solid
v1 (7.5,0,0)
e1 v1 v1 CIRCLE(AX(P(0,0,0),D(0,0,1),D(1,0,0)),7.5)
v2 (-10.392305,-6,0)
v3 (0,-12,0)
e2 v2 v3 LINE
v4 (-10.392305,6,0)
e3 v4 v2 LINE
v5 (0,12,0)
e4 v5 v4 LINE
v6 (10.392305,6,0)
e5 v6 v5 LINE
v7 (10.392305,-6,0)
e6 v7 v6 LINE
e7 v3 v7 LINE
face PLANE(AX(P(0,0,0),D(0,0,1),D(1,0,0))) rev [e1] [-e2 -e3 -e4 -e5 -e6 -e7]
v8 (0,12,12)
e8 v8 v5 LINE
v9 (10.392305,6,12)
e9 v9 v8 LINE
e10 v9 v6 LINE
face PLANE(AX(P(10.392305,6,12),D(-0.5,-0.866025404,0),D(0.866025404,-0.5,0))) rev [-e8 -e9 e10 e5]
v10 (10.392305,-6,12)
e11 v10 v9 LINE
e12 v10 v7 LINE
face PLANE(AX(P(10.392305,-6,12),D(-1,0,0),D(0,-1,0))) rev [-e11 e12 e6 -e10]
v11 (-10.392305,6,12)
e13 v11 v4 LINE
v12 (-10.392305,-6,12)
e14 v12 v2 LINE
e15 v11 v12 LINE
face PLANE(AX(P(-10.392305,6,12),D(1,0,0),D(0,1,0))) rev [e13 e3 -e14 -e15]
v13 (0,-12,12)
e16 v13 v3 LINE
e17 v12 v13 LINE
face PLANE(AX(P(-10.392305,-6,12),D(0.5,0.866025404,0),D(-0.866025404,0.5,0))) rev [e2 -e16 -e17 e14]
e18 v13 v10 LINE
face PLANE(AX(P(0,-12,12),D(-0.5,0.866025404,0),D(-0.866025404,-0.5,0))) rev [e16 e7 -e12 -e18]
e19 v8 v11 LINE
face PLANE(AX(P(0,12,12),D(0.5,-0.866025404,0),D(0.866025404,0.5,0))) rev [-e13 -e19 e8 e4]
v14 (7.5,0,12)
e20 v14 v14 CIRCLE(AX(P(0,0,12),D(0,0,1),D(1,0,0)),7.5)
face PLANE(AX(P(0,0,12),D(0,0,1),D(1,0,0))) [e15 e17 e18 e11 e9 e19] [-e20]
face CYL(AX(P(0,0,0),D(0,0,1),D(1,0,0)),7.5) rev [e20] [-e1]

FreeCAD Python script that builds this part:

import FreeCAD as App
import Part
import Sketcher

V = App.Vector
Q = App.Units.Quantity


def add_polygon(sketch, points):
    """Adds a closed chain of lines whose ends are joined by coincident constraints."""
    first, n = sketch.GeometryCount, len(points)
    for a, b in zip(points, points[1:] + points[:1]):
        sketch.addGeometry(Part.LineSegment(App.Vector(*a, 0), App.Vector(*b, 0)), False)
    for i in range(n):
        sketch.addConstraint(Sketcher.Constraint("Coincident", first + i, 2, first + (i + 1) % n, 1))

doc = App.newDocument("Part")
params = doc.addObject("Spreadsheet::Sheet", "Params")
for row, (alias, value) in enumerate([
    ("sketch1_height", "12 mm"),
    ("sketch1_length", "12 mm"),
    ("pad1_length", "12 mm"),
    ("sketch2_diameter", "15 mm"),
], start=1):
    params.set(f"A{row}", alias)
    params.set(f"B{row}", "=" + value)
    params.setAlias(f"B{row}", alias)

body = doc.addObject("PartDesign::Body", "Body")

# Sketch on XY plane
sketch1 = doc.addObject("Sketcher::SketchObject", "Sketch")
body.addObject(sketch1)
sketch1.AttachmentSupport = (doc.XY_Plane, [""])
sketch1.MapMode = "FlatFace"
add_polygon(sketch1, [(0, -12), (10, -6), (10, 6), (0, 12), (-10, 6), (-10, -6)])  # lines 0-5
sketch1.addConstraint([
    Sketcher.Constraint("Vertical", 1),
    Sketcher.Constraint("Vertical", 4),
    Sketcher.Constraint("Symmetric", 0, 2, 3, 2, -1, 1),
    Sketcher.Constraint("Symmetric", 2, 2, 5, 2, -1, 1),
    Sketcher.Constraint("PointOnObject", 2, 2, -2),
    Sketcher.Constraint("Parallel", 2, 5),
    Sketcher.Constraint("Horizontal", 1, 2, 3, 2),
    Sketcher.Constraint("DistanceY", 1, 1, 1, 2, Q("12 mm")),
    Sketcher.Constraint("Angle", 0, Q("30 deg")),
    Sketcher.Constraint("Distance", 0, Q("12 mm")),
])
sketch1.setExpression("Constraints[13]", "Params.sketch1_height")
sketch1.setExpression("Constraints[15]", "Params.sketch1_length")
pad1 = doc.addObject("PartDesign::Pad", "Pad")
body.addObject(pad1)
pad1.Profile = sketch1
pad1.setExpression("Length", "Params.pad1_length")

# Sketch on XY plane
sketch2 = doc.addObject("Sketcher::SketchObject", "Sketch001")
body.addObject(sketch2)
sketch2.AttachmentSupport = (doc.XY_Plane, [""])
sketch2.MapMode = "FlatFace"
sketch2.AttachmentOffset = App.Placement(V(0, 0, 12), App.Rotation())
sketch2.addGeometry(Part.Circle(V(0, 0, 0), V(0, 0, 1), 8), False)
sketch2.addConstraint([
    Sketcher.Constraint("Coincident", 0, 3, -1, 1),
    Sketcher.Constraint("Diameter", 0, Q("15 mm")),
])
sketch2.setExpression("Constraints[1]", "Params.sketch2_diameter")
pocket1 = doc.addObject("PartDesign::Pocket", "Pocket")
body.addObject(pocket1)
pocket1.Profile = sketch2
pocket1.Type = "ThroughAll"
pocket1.Midplane = True

doc.recompute()
